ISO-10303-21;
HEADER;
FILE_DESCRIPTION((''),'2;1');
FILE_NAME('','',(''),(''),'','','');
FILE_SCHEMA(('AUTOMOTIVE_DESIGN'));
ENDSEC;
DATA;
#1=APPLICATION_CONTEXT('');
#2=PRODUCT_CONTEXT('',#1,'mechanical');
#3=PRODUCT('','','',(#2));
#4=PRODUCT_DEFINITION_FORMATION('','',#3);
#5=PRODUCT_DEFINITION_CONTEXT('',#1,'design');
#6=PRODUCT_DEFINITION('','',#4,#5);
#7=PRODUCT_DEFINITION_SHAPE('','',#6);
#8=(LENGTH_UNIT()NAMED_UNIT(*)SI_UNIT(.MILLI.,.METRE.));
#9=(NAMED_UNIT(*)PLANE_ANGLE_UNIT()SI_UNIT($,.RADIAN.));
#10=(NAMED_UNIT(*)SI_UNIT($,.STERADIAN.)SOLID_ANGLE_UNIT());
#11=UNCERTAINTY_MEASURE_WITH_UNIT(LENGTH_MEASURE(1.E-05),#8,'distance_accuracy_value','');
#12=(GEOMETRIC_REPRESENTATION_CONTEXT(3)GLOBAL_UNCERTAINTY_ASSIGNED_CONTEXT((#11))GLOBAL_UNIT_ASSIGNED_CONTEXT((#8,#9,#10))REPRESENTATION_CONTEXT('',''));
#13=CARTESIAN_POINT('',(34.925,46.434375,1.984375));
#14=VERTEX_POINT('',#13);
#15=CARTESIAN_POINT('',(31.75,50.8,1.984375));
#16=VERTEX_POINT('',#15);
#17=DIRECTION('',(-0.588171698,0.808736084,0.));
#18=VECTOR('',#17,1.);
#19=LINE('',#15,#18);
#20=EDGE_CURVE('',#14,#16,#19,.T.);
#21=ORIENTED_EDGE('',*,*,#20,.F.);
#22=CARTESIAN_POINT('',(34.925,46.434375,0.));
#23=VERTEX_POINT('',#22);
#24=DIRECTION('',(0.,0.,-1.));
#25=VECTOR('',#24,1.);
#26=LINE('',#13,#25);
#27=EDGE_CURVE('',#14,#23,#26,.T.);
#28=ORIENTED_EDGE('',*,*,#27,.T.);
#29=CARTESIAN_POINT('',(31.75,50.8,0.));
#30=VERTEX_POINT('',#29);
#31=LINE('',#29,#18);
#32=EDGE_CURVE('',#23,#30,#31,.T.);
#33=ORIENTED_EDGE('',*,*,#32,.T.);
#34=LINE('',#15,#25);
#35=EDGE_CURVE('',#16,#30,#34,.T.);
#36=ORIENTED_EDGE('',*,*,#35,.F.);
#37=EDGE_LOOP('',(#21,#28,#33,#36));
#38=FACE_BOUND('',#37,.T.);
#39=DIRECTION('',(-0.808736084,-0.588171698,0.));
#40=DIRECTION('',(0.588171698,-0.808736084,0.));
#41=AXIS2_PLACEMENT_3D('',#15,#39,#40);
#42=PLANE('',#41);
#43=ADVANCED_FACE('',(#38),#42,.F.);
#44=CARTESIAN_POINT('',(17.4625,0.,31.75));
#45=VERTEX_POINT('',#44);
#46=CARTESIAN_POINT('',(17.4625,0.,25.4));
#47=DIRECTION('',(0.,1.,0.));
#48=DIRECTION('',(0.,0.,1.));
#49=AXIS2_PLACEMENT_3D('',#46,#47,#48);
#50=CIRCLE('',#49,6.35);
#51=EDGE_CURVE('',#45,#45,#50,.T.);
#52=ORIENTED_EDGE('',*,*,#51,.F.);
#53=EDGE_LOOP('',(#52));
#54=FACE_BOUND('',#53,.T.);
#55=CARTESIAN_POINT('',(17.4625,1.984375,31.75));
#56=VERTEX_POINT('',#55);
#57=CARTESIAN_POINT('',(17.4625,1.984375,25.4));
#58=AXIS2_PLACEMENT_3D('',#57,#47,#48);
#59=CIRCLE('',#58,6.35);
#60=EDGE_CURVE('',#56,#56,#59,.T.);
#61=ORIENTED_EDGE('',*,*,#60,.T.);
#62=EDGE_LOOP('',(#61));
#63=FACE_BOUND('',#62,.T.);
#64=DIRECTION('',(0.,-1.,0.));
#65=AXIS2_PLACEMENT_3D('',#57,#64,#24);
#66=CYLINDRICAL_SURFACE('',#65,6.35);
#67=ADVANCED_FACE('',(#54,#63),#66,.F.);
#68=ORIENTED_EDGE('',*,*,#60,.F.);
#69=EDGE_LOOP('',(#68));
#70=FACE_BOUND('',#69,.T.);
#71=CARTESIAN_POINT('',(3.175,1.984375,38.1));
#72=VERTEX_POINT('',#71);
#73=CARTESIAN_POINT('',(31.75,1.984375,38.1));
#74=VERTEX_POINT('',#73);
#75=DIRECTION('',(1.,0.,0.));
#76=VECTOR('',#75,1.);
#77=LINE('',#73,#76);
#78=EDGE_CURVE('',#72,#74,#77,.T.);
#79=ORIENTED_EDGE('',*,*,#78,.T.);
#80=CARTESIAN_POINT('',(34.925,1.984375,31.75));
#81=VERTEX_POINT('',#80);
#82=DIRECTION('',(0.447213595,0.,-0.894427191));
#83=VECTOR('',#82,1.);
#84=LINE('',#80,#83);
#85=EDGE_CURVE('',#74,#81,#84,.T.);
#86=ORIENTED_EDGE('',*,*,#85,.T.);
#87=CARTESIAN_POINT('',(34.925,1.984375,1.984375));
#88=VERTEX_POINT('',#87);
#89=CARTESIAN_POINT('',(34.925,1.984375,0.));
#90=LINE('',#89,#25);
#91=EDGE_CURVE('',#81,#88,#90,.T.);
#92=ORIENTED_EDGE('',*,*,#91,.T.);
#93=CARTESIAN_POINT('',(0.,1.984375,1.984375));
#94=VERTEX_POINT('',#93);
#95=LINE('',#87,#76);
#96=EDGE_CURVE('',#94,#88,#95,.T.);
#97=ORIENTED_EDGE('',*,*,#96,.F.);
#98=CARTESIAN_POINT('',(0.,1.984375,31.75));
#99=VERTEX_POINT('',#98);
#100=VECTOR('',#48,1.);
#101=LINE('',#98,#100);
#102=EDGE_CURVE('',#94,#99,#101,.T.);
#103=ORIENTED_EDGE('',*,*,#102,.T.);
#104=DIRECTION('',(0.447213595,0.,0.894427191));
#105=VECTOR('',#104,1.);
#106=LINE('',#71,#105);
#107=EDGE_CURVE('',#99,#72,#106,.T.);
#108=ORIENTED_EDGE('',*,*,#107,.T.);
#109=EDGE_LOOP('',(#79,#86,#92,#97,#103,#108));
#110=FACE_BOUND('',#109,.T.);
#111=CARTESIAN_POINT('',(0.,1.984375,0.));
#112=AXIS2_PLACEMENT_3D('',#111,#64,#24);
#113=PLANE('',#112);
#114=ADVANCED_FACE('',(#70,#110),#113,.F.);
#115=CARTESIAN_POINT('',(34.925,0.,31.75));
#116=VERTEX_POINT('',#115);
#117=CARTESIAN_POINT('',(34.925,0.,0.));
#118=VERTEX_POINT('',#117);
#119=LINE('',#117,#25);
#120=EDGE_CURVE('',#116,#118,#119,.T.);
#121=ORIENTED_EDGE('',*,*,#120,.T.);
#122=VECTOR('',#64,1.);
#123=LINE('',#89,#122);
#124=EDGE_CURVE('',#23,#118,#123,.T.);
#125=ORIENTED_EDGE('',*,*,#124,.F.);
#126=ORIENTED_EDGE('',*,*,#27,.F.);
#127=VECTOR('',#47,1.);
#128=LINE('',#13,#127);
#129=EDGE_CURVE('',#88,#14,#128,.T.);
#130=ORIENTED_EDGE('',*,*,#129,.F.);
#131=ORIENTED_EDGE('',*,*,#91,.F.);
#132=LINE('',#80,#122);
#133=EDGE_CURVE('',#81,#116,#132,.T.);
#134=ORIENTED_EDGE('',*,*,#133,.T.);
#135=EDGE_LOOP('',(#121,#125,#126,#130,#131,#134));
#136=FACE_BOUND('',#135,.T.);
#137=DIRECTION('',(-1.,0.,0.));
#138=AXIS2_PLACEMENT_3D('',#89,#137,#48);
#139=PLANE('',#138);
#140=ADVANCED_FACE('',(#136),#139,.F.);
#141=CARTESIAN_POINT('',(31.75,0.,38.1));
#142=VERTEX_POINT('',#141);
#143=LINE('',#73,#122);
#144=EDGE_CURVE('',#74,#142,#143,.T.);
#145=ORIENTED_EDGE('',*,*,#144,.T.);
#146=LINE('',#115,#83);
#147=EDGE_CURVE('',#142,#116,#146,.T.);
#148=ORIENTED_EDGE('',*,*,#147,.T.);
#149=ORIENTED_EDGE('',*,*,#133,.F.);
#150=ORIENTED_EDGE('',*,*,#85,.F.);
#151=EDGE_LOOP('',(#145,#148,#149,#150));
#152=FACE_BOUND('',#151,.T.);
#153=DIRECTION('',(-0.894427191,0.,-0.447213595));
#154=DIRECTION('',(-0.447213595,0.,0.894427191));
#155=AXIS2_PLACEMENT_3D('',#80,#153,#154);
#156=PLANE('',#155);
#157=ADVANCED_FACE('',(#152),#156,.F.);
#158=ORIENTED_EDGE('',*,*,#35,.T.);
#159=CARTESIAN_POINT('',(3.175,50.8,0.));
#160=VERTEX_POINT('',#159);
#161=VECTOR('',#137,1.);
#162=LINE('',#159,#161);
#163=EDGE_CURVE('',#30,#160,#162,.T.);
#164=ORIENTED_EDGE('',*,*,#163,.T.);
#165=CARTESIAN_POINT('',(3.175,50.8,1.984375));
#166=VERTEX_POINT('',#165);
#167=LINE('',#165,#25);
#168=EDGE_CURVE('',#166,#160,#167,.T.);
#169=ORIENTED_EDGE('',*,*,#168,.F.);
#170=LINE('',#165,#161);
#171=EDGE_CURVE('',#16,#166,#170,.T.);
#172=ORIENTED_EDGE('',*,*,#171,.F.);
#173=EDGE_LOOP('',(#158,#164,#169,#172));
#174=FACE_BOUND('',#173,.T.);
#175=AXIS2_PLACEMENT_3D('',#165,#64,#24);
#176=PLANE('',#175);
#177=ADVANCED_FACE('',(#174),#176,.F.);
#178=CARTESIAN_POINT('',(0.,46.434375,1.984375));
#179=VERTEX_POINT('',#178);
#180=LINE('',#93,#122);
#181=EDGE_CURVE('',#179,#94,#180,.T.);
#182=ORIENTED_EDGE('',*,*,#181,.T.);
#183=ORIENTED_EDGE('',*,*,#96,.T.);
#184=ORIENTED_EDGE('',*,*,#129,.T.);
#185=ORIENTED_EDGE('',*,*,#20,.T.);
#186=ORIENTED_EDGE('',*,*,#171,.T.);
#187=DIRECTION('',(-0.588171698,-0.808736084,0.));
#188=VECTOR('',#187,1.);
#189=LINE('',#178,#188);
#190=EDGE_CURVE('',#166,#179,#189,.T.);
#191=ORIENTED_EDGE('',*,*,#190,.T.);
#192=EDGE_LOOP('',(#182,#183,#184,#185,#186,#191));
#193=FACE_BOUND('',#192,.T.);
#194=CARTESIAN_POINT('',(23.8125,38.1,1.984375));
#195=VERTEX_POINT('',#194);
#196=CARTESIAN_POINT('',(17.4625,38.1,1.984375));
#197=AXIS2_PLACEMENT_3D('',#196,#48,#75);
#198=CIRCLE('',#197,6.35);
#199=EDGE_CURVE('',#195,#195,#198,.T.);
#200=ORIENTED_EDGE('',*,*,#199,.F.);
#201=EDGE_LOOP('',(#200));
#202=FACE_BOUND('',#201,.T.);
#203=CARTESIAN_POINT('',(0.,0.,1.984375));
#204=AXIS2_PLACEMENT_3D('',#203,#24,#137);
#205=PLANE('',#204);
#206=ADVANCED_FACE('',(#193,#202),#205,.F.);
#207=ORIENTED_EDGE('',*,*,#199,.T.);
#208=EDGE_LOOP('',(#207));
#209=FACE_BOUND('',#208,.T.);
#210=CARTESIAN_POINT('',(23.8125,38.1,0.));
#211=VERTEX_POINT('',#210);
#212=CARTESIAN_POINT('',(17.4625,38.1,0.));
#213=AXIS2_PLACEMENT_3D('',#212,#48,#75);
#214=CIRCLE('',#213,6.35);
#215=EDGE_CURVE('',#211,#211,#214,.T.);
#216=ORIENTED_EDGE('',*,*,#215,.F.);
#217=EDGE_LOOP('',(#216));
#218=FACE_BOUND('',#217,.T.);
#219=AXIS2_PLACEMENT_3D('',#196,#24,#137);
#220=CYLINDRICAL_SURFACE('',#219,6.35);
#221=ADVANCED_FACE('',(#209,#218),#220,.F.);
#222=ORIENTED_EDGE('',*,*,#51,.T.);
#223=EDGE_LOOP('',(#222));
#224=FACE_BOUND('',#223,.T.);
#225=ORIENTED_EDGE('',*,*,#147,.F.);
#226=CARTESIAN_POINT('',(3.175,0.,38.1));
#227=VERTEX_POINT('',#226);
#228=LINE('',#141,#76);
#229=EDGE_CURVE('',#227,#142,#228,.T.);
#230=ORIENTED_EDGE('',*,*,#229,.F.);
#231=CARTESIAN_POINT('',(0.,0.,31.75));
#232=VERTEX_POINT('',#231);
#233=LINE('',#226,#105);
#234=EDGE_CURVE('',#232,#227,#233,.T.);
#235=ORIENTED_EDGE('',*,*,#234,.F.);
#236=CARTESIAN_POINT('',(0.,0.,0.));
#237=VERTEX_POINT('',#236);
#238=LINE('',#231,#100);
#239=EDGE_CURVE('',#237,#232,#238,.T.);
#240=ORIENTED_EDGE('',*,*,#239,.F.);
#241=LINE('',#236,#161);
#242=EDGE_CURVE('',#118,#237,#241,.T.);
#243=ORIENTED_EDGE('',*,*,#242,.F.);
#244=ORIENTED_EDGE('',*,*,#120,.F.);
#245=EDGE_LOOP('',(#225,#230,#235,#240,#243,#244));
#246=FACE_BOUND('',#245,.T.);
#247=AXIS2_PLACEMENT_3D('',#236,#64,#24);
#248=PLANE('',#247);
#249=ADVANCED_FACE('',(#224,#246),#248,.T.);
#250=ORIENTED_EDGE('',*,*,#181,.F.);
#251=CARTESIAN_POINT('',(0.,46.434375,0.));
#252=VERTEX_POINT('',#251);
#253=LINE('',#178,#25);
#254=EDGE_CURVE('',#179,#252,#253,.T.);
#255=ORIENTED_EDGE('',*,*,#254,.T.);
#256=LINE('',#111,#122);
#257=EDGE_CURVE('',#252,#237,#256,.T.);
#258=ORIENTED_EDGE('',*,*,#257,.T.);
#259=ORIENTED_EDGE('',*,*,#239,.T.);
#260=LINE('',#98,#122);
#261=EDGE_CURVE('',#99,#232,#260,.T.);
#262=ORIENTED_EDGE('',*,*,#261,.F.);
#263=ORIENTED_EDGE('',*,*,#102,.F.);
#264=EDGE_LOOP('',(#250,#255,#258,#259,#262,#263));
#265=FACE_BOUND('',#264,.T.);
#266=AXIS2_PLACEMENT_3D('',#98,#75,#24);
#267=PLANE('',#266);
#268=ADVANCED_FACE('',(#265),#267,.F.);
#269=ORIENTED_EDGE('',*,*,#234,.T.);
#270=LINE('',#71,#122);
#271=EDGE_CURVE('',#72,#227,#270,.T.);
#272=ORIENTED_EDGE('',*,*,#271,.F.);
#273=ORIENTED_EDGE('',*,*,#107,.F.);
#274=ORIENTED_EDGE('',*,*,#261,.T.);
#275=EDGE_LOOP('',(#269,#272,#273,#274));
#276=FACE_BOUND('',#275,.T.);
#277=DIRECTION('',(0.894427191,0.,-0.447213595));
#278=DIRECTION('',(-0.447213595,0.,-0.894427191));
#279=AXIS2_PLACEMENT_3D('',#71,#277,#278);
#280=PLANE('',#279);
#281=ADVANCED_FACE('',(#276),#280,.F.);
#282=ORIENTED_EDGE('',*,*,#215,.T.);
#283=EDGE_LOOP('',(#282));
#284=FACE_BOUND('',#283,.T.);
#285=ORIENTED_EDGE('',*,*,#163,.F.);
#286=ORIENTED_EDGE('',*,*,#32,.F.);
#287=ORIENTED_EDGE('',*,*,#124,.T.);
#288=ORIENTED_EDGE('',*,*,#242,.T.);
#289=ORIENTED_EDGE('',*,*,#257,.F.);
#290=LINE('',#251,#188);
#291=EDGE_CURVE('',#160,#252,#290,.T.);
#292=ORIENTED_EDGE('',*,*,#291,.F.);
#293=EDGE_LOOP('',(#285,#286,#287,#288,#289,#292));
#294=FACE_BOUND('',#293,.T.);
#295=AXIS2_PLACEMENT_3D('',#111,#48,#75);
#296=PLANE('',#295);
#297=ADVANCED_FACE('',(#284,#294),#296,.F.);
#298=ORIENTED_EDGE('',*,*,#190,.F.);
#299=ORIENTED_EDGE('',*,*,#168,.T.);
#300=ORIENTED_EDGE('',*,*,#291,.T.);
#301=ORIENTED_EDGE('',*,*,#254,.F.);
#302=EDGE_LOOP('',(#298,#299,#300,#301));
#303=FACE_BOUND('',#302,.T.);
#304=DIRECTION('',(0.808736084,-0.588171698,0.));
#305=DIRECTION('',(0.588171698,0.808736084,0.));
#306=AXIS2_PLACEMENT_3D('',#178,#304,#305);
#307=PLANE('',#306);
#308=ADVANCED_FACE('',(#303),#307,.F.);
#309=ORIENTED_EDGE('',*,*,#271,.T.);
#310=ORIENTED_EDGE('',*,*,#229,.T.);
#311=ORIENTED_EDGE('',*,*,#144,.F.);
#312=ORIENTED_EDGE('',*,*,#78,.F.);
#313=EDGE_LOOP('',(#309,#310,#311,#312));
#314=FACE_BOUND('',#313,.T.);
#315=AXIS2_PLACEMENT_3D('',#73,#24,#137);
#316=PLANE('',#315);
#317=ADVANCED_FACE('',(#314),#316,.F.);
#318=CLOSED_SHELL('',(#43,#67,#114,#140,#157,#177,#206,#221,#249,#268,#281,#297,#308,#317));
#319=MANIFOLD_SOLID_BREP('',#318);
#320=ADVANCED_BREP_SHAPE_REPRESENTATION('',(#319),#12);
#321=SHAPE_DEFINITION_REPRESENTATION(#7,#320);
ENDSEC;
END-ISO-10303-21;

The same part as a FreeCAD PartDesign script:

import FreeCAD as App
import Part
import Sketcher

V = App.Vector
Q = App.Units.Quantity

doc = App.newDocument("Part")
body = doc.addObject("PartDesign::Body", "Body")

sketch1 = body.newObject("Sketcher::SketchObject", "Sketch")
sketch1.AttachmentSupport = (doc.getObject("XZ_Plane"), [""])
sketch1.MapMode = "FlatFace"
sketch1.addGeometry([
    Part.LineSegment(V(35, 0, 0), V(0, 0, 0)),
    Part.LineSegment(V(0, 0, 0), V(0, 32, 0)),
    Part.LineSegment(V(0, 32, 0), V(3, 38, 0)),
    Part.LineSegment(V(3, 38, 0), V(32, 38, 0)),
    Part.LineSegment(V(32, 38, 0), V(35, 32, 0)),
    Part.LineSegment(V(35, 32, 0), V(35, 0, 0)),
    Part.Circle(V(17, 25, 0), V(0, 0, 1), 6),
], False)
sketch1.addConstraint([
    Sketcher.Constraint("Coincident", 0, 2, 1, 1),
    Sketcher.Constraint("Coincident", 1, 2, 2, 1),
    Sketcher.Constraint("Coincident", 2, 2, 3, 1),
    Sketcher.Constraint("Coincident", 3, 2, 4, 1),
    Sketcher.Constraint("Coincident", 4, 2, 5, 1),
    Sketcher.Constraint("Coincident", 5, 2, 0, 1),
    Sketcher.Constraint("Horizontal", 0),
    Sketcher.Constraint("Vertical", 1),
    Sketcher.Constraint("Horizontal", 3),
    Sketcher.Constraint("Vertical", 5),
    Sketcher.Constraint("Coincident", 0, 2, -1, 1),
    Sketcher.Constraint("Horizontal", 1, 2, 4, 2),
    Sketcher.Constraint("Equal", 2, 4),
    Sketcher.Constraint("Diameter", 6, Q("0.5 in")),
    Sketcher.Constraint("DistanceY", -1, 1, 6, 3, Q("1 in")),
    Sketcher.Constraint("DistanceY", 1, 1, 1, 2, Q("1.25 in")),
    Sketcher.Constraint("DistanceY", -1, 1, 2, 2, Q("1.5 in")),
    Sketcher.Constraint("DistanceX", 0, 2, 0, 1, Q("1.375 in")),
    Sketcher.Constraint("DistanceX", 3, 1, 3, 2, Q("1.125 in")),
    Sketcher.Constraint("DistanceX", -1, 1, 6, 3, Q("0.6875 in")),
])
pad1 = body.newObject("PartDesign::Pad", "Pad")
pad1.Profile = sketch1
pad1.Length = Q("0.078125 in")
pad1.Reversed = True

sketch2 = body.newObject("Sketcher::SketchObject", "Sketch001")
sketch2.AttachmentSupport = (doc.getObject("XY_Plane"), [""])
sketch2.MapMode = "FlatFace"
sketch2.addGeometry([
    Part.LineSegment(V(0, 46, 0), V(0, 2, 0)),
    Part.LineSegment(V(0, 2, 0), V(35, 2, 0)),
    Part.LineSegment(V(35, 2, 0), V(35, 46, 0)),
    Part.LineSegment(V(35, 46, 0), V(32, 51, 0)),
    Part.LineSegment(V(32, 51, 0), V(3, 51, 0)),
    Part.LineSegment(V(3, 51, 0), V(0, 46, 0)),
    Part.Circle(V(17, 38, 0), V(0, 0, 1), 6),
], False)
sketch2.addConstraint([
    Sketcher.Constraint("Coincident", 0, 2, 1, 1),
    Sketcher.Constraint("Coincident", 1, 2, 2, 1),
    Sketcher.Constraint("Coincident", 2, 2, 3, 1),
    Sketcher.Constraint("Coincident", 3, 2, 4, 1),
    Sketcher.Constraint("Coincident", 4, 2, 5, 1),
    Sketcher.Constraint("Coincident", 5, 2, 0, 1),
    Sketcher.Constraint("Vertical", 0),
    Sketcher.Constraint("Horizontal", 1),
    Sketcher.Constraint("Vertical", 2),
    Sketcher.Constraint("Horizontal", 4),
    Sketcher.Constraint("PointOnObject", 0, 2, -2),
    Sketcher.Constraint("Horizontal", 2, 2, 5, 2),
    Sketcher.Constraint("Equal", 3, 5),
    Sketcher.Constraint("Diameter", 6, Q("0.5 in")),
    Sketcher.Constraint("DistanceY", -1, 1, 3, 2, Q("2 in")),
    Sketcher.Constraint("DistanceY", 0, 2, 0, 1, Q("1.75 in")),
    Sketcher.Constraint("DistanceY", -1, 1, 6, 3, Q("1.5 in")),
    Sketcher.Constraint("DistanceX", 1, 1, 1, 2, Q("1.375 in")),
    Sketcher.Constraint("DistanceX", 4, 2, 4, 1, Q("1.125 in")),
    Sketcher.Constraint("DistanceX", -1, 1, 6, 3, Q("0.6875 in")),
    Sketcher.Constraint("DistanceY", -1, 1, 0, 2, Q("0.078125 in")),
])
pad2 = body.newObject("PartDesign::Pad", "Pad001")
pad2.Profile = sketch2
pad2.Length = Q("0.078125 in")

doc.recompute()
